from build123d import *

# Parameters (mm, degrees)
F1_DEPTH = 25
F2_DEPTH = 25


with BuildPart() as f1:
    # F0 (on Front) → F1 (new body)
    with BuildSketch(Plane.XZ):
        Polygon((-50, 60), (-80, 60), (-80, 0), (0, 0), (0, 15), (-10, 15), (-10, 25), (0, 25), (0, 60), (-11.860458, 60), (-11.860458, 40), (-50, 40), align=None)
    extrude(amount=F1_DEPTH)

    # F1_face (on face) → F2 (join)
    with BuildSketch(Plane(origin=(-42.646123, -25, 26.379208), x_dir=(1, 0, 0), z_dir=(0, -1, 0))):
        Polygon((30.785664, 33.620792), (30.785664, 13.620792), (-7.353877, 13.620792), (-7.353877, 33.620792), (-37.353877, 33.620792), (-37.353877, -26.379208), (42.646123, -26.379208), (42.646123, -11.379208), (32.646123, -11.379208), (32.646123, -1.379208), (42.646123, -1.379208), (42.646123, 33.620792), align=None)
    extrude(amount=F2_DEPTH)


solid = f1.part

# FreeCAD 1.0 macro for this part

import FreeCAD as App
import Part
import Sketcher

V = App.Vector
Q = App.Units.Quantity

doc = App.newDocument("Part")
params = doc.addObject("Spreadsheet::Sheet", "Params")
for row, (alias, value) in enumerate([
    ("sketch1_width", "30 mm"),
    ("sketch1_width2", "80 mm"),
    ("sketch1_width3", "10 mm"),
    ("sketch1_height", "60 mm"),
    ("sketch1_height2", "15 mm"),
    ("pad1_length", "25 mm"),
    ("sketch2_width", "30 mm"),
    ("sketch2_width2", "80 mm"),
    ("sketch2_width3", "10 mm"),
    ("sketch2_height", "20 mm"),
    ("sketch2_height2", "60 mm"),
    ("pad2_length", "25 mm"),
], start=1):
    params.set(f"A{row}", alias)
    params.set(f"B{row}", "=" + value)
    params.setAlias(f"B{row}", alias)

body = doc.addObject("PartDesign::Body", "Body")

# Sketch on XZ plane
sketch1 = body.newObject("Sketcher::SketchObject", "Sketch")
sketch1.AttachmentSupport = (doc.getObject("XZ_Plane"), [""])
sketch1.MapMode = "FlatFace"
sketch1.addGeometry(Part.LineSegment(V(-50, 60, 0), V(-80, 60, 0)), False)
sketch1.addGeometry(Part.LineSegment(V(-80, 60, 0), V(-80, 0, 0)), False)
sketch1.addGeometry(Part.LineSegment(V(-80, 0, 0), V(0, 0, 0)), False)
sketch1.addGeometry(Part.LineSegment(V(0, 0, 0), V(0, 15, 0)), False)
sketch1.addGeometry(Part.LineSegment(V(0, 15, 0), V(-10, 15, 0)), False)
sketch1.addGeometry(Part.LineSegment(V(-10, 15, 0), V(-10, 25, 0)), False)
sketch1.addGeometry(Part.LineSegment(V(-10, 25, 0), V(0, 25, 0)), False)
sketch1.addGeometry(Part.LineSegment(V(0, 25, 0), V(0, 60, 0)), False)
sketch1.addGeometry(Part.LineSegment(V(0, 60, 0), V(-12, 60, 0)), False)
sketch1.addGeometry(Part.LineSegment(V(-12, 60, 0), V(-12, 40, 0)), False)
sketch1.addGeometry(Part.LineSegment(V(-12, 40, 0), V(-50, 40, 0)), False)
sketch1.addGeometry(Part.LineSegment(V(-50, 40, 0), V(-50, 60, 0)), False)
sketch1.addConstraint(Sketcher.Constraint("Coincident", 0, 2, 1, 1))
sketch1.addConstraint(Sketcher.Constraint("Coincident", 1, 2, 2, 1))
sketch1.addConstraint(Sketcher.Constraint("Coincident", 2, 2, 3, 1))
sketch1.addConstraint(Sketcher.Constraint("Coincident", 3, 2, 4, 1))
sketch1.addConstraint(Sketcher.Constraint("Coincident", 4, 2, 5, 1))
sketch1.addConstraint(Sketcher.Constraint("Coincident", 5, 2, 6, 1))
sketch1.addConstraint(Sketcher.Constraint("Coincident", 6, 2, 7, 1))
sketch1.addConstraint(Sketcher.Constraint("Coincident", 7, 2, 8, 1))
sketch1.addConstraint(Sketcher.Constraint("Coincident", 8, 2, 9, 1))
sketch1.addConstraint(Sketcher.Constraint("Coincident", 9, 2, 10, 1))
sketch1.addConstraint(Sketcher.Constraint("Coincident", 10, 2, 11, 1))
sketch1.addConstraint(Sketcher.Constraint("Coincident", 11, 2, 0, 1))
sketch1.addConstraint(Sketcher.Constraint("Horizontal", 0))
sketch1.addConstraint(Sketcher.Constraint("Vertical", 1))
sketch1.addConstraint(Sketcher.Constraint("Horizontal", 2))
sketch1.addConstraint(Sketcher.Constraint("Vertical", 3))
sketch1.addConstraint(Sketcher.Constraint("Horizontal", 4))
sketch1.addConstraint(Sketcher.Constraint("Vertical", 5))
sketch1.addConstraint(Sketcher.Constraint("Horizontal", 6))
sketch1.addConstraint(Sketcher.Constraint("Vertical", 7))
sketch1.addConstraint(Sketcher.Constraint("Horizontal", 8))
sketch1.addConstraint(Sketcher.Constraint("Vertical", 9))
sketch1.addConstraint(Sketcher.Constraint("Horizontal", 10))
sketch1.addConstraint(Sketcher.Constraint("Vertical", 11))
sketch1.addConstraint(Sketcher.Constraint("Coincident", 2, 2, -1, 1))
sketch1.addConstraint(Sketcher.Constraint("PointOnObject", 6, 2, -2))
sketch1.addConstraint(Sketcher.Constraint("Horizontal", 0, 2, 7, 2))
sketch1.addConstraint(Sketcher.Constraint("Equal", 6, 5))
sketch1.addConstraint(Sketcher.Constraint("DistanceX", 0, 2, 0, 1, Q("30 mm")))
sketch1.addConstraint(Sketcher.Constraint("DistanceX", 2, 1, 2, 2, Q("80 mm")))
sketch1.addConstraint(Sketcher.Constraint("DistanceX", 4, 2, 4, 1, Q("10 mm")))
sketch1.addConstraint(Sketcher.Constraint("DistanceY", 1, 2, 1, 1, Q("60 mm")))
sketch1.addConstraint(Sketcher.Constraint("DistanceY", 3, 1, 3, 2, Q("15 mm")))
sketch1.addConstraint(Sketcher.Constraint("DistanceY", 9, 2, 9, 1, Q("20 mm")))
sketch1.addConstraint(Sketcher.Constraint("DistanceX", 8, 2, 8, 1, Q("11.860458 mm")))
sketch1.setExpression("Constraints[28]", "Params.sketch1_width")
sketch1.setExpression("Constraints[29]", "Params.sketch1_width2")
sketch1.setExpression("Constraints[30]", "Params.sketch1_width3")
sketch1.setExpression("Constraints[31]", "Params.sketch1_height")
sketch1.setExpression("Constraints[32]", "Params.sketch1_height2")
pad1 = body.newObject("PartDesign::Pad", "Pad")
pad1.Profile = sketch1
pad1.setExpression("Length", "Params.pad1_length")

# Sketch on XZ plane
sketch2 = body.newObject("Sketcher::SketchObject", "Sketch001")
sketch2.AttachmentSupport = (doc.getObject("XZ_Plane"), [""])
sketch2.MapMode = "FlatFace"
sketch2.AttachmentOffset = App.Placement(V(0, 0, 25), App.Rotation())
sketch2.addGeometry(Part.LineSegment(V(-12, 60, 0), V(-12, 40, 0)), False)
sketch2.addGeometry(Part.LineSegment(V(-12, 40, 0), V(-50, 40, 0)), False)
sketch2.addGeometry(Part.LineSegment(V(-50, 40, 0), V(-50, 60, 0)), False)
sketch2.addGeometry(Part.LineSegment(V(-50, 60, 0), V(-80, 60, 0)), False)
sketch2.addGeometry(Part.LineSegment(V(-80, 60, 0), V(-80, 0, 0)), False)
sketch2.addGeometry(Part.LineSegment(V(-80, 0, 0), V(0, 0, 0)), False)
sketch2.addGeometry(Part.LineSegment(V(0, 0, 0), V(0, 15, 0)), False)
sketch2.addGeometry(Part.LineSegment(V(0, 15, 0), V(-10, 15, 0)), False)
sketch2.addGeometry(Part.LineSegment(V(-10, 15, 0), V(-10, 25, 0)), False)
sketch2.addGeometry(Part.LineSegment(V(-10, 25, 0), V(0, 25, 0)), False)
sketch2.addGeometry(Part.LineSegment(V(0, 25, 0), V(0, 60, 0)), False)
sketch2.addGeometry(Part.LineSegment(V(0, 60, 0), V(-12, 60, 0)), False)
sketch2.addConstraint(Sketcher.Constraint("Coincident", 0, 2, 1, 1))
sketch2.addConstraint(Sketcher.Constraint("Coincident", 1, 2, 2, 1))
sketch2.addConstraint(Sketcher.Constraint("Coincident", 2, 2, 3, 1))
sketch2.addConstraint(Sketcher.Constraint("Coincident", 3, 2, 4, 1))
sketch2.addConstraint(Sketcher.Constraint("Coincident", 4, 2, 5, 1))
sketch2.addConstraint(Sketcher.Constraint("Coincident", 5, 2, 6, 1))
sketch2.addConstraint(Sketcher.Constraint("Coincident", 6, 2, 7, 1))
sketch2.addConstraint(Sketcher.Constraint("Coincident", 7, 2, 8, 1))
sketch2.addConstraint(Sketcher.Constraint("Coincident", 8, 2, 9, 1))
sketch2.addConstraint(Sketcher.Constraint("Coincident", 9, 2, 10, 1))
sketch2.addConstraint(Sketcher.Constraint("Coincident", 10, 2, 11, 1))
sketch2.addConstraint(Sketcher.Constraint("Coincident", 11, 2, 0, 1))
sketch2.addConstraint(Sketcher.Constraint("Vertical", 0))
sketch2.addConstraint(Sketcher.Constraint("Horizontal", 1))
sketch2.addConstraint(Sketcher.Constraint("Vertical", 2))
sketch2.addConstraint(Sketcher.Constraint("Horizontal", 3))
sketch2.addConstraint(Sketcher.Constraint("Vertical", 4))
sketch2.addConstraint(Sketcher.Constraint("Horizontal", 5))
sketch2.addConstraint(Sketcher.Constraint("Vertical", 6))
sketch2.addConstraint(Sketcher.Constraint("Horizontal", 7))
sketch2.addConstraint(Sketcher.Constraint("Vertical", 8))
sketch2.addConstraint(Sketcher.Constraint("Horizontal", 9))
sketch2.addConstraint(Sketcher.Constraint("Vertical", 10))
sketch2.addConstraint(Sketcher.Constraint("Horizontal", 11))
sketch2.addConstraint(Sketcher.Constraint("Coincident", 5, 2, -1, 1))
sketch2.addConstraint(Sketcher.Constraint("PointOnObject", 9, 2, -2))
sketch2.addConstraint(Sketcher.Constraint("Horizontal", 3, 2, 10, 2))
sketch2.addConstraint(Sketcher.Constraint("Equal", 9, 8))
sketch2.addConstraint(Sketcher.Constraint("DistanceX", 3, 2, 3, 1, Q("30 mm")))
sketch2.addConstraint(Sketcher.Constraint("DistanceX", 5, 1, 5, 2, Q("80 mm")))
sketch2.addConstraint(Sketcher.Constraint("DistanceX", 7, 2, 7, 1, Q("10 mm")))
sketch2.addConstraint(Sketcher.Constraint("DistanceY", 0, 2, 0, 1, Q("20 mm")))
sketch2.addConstraint(Sketcher.Constraint("DistanceY", 4, 2, 4, 1, Q("60 mm")))
sketch2.addConstraint(Sketcher.Constraint("DistanceY", 6, 1, 6, 2, Q("15 mm")))
sketch2.addConstraint(Sketcher.Constraint("DistanceX", 1, 2, 1, 1, Q("38.139541 mm")))
sketch2.setExpression("Constraints[28]", "Params.sketch2_width")
sketch2.setExpression("Constraints[29]", "Params.sketch2_width2")
sketch2.setExpression("Constraints[30]", "Params.sketch2_width3")
sketch2.setExpression("Constraints[31]", "Params.sketch2_height")
sketch2.setExpression("Constraints[32]", "Params.sketch2_height2")
pad2 = body.newObject("PartDesign::Pad", "Pad001")
pad2.Profile = sketch2
pad2.setExpression("Length", "Params.pad2_length")

doc.recompute()
